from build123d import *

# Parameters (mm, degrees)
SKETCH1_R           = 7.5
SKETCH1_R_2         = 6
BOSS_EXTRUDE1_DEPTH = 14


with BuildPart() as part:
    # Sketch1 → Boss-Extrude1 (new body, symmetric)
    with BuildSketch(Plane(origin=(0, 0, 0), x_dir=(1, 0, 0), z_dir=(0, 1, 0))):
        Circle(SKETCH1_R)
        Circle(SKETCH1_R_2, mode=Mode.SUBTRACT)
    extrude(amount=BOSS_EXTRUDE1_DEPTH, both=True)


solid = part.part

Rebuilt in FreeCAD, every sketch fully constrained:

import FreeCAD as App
import Part
import Sketcher

doc = App.newDocument("Part")
body = doc.addObject("PartDesign::Body", "Body")

# Sketch on XZ plane
sketch1 = body.newObject("Sketcher::SketchObject", "Sketch")
sketch1.AttachmentSupport = (doc.getObject("XZ_Plane"), [""])
sketch1.MapMode = "FlatFace"
sketch1.addGeometry([
    Part.Circle(App.Vector(0, 0, 0), App.Vector(0, 0, 1), 8),
    Part.Circle(App.Vector(0, 0, 0), App.Vector(0, 0, 1), 6),
], False)
sketch1.addConstraint([
    Sketcher.Constraint("Coincident", 0, 3, -1, 1),
    Sketcher.Constraint("Coincident", 1, 3, -1, 1),
    Sketcher.Constraint("Diameter", 0, 15.0),
    Sketcher.Constraint("Diameter", 1, 12.0),
])
pad1 = body.newObject("PartDesign::Pad", "Pad")
pad1.Profile = sketch1
pad1.Length = 28
pad1.Midplane = True

doc.recompute()
